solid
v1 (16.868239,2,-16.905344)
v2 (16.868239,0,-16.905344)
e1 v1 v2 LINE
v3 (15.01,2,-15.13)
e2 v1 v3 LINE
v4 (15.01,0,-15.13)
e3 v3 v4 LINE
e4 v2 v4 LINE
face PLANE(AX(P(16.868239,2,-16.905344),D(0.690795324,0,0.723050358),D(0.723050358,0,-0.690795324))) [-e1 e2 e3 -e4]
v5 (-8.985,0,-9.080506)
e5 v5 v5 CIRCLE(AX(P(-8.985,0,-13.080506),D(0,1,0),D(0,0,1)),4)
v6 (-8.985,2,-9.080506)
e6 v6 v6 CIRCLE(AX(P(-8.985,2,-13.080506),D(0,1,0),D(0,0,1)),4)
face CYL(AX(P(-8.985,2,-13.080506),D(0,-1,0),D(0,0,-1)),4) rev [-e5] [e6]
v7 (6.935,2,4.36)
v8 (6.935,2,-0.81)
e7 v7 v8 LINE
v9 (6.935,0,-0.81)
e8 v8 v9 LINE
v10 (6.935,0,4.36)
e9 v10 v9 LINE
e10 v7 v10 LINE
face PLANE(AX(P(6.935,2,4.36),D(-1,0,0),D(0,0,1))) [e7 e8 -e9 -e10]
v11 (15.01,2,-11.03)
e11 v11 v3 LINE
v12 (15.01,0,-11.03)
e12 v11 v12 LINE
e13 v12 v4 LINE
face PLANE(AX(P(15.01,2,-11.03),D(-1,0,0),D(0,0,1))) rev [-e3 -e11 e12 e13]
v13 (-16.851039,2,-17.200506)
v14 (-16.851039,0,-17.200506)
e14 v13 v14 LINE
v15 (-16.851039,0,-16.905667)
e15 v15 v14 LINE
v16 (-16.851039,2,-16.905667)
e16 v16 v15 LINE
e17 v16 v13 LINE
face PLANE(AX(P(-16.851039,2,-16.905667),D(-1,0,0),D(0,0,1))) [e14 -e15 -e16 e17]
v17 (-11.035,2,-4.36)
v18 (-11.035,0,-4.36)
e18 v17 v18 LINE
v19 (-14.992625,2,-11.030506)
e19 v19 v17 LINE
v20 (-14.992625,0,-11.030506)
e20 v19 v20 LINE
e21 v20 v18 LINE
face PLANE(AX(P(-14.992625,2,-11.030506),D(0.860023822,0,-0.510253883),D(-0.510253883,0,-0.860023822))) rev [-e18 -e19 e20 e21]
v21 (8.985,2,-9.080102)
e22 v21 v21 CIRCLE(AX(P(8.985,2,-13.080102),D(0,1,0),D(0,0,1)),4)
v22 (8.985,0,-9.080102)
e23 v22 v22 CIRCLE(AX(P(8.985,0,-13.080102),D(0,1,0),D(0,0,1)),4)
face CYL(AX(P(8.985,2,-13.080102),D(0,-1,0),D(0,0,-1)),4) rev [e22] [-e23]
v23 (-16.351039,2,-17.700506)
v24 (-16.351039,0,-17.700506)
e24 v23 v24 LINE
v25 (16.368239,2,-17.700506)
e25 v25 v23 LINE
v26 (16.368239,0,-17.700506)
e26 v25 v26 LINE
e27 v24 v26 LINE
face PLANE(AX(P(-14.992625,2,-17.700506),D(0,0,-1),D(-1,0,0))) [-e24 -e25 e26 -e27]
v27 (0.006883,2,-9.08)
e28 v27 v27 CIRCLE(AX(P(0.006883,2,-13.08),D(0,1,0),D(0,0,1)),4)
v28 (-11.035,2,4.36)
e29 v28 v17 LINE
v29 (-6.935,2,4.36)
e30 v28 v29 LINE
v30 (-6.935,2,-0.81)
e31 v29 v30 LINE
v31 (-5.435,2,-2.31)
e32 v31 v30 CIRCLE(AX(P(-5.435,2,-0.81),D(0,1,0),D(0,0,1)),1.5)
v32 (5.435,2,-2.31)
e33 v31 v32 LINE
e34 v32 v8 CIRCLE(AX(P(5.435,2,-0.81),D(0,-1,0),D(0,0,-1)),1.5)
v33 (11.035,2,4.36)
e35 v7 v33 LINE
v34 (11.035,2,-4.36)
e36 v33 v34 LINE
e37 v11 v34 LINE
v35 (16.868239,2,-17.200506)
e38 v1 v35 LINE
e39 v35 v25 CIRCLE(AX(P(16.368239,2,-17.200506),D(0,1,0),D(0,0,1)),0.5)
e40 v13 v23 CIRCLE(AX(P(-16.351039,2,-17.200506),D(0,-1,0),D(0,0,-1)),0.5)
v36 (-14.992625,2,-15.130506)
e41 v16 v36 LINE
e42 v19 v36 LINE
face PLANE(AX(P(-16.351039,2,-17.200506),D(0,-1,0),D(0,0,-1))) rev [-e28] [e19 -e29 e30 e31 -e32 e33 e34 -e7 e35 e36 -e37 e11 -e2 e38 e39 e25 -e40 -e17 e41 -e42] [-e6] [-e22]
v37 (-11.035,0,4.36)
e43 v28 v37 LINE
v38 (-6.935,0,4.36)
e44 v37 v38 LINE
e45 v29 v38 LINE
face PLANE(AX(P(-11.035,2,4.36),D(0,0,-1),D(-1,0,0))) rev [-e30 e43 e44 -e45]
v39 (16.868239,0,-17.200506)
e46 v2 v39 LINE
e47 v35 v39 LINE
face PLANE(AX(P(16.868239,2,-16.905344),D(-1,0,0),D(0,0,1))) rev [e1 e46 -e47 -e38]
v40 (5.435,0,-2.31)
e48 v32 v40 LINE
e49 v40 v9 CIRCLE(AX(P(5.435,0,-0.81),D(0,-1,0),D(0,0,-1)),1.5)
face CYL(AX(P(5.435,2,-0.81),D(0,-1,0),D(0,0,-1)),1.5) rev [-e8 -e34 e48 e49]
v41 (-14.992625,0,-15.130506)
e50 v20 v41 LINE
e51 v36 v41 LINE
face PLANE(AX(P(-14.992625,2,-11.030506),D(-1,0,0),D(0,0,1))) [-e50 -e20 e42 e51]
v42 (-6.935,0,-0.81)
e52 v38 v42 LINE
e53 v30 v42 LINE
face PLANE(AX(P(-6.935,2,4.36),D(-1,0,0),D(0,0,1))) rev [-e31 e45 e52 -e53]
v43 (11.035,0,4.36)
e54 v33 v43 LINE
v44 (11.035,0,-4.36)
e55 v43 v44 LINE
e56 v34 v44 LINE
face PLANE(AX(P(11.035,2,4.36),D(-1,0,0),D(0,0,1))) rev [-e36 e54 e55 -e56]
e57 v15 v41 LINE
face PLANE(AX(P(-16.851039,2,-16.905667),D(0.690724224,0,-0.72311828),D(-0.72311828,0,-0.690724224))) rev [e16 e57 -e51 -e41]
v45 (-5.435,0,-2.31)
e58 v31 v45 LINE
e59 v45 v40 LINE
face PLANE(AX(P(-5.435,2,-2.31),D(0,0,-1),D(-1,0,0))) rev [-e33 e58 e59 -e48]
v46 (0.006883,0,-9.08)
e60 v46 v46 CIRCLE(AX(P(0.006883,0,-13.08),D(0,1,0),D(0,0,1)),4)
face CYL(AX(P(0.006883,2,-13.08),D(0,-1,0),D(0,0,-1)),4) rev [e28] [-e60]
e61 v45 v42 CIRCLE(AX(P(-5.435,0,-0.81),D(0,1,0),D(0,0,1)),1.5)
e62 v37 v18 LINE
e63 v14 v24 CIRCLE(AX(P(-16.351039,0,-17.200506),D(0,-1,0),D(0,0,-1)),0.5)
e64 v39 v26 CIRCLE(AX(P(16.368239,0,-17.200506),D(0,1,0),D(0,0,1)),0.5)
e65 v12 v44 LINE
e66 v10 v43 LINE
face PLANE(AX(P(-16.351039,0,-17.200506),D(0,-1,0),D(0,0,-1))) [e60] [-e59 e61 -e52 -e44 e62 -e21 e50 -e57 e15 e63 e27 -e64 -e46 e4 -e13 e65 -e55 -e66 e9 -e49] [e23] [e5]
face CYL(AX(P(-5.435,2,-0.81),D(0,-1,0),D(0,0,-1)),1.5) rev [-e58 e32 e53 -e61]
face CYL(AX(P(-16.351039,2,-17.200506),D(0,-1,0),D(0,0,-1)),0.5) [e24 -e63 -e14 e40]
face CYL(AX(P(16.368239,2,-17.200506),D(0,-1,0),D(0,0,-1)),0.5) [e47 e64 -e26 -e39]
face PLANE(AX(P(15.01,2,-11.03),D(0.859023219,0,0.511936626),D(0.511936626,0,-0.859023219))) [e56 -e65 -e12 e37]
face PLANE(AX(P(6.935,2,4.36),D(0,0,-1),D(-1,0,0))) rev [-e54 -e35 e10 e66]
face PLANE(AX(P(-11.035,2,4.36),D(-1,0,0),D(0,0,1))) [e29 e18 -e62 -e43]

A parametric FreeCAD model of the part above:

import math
import FreeCAD as App
import Part
import Sketcher
from FreeCAD import Vector
Q = App.Units.Quantity

doc = App.newDocument("Part")
params = doc.addObject("Spreadsheet::Sheet", "Params")
for row, (alias, value) in enumerate([
    ("sketch1_radius", "1.5 mm"),
    ("sketch1_radius2", "0.5 mm"),
    ("sketch1_width", "4.1 mm"),
    ("sketch1_width2", "10.87 mm"),
    ("sketch1_height", "5.17 mm"),
    ("pad1_length", "2 mm"),
    ("sketch2_diameter", "8 mm"),
    ("pocket1_length", "2 mm"),
    ("sketch3_diameter", "8 mm"),
    ("pocket2_length", "2 mm"),
    ("sketch4_diameter", "8 mm"),
    ("pocket3_length", "2 mm"),
], start=1):
    params.set(f"A{row}", alias)
    params.set(f"B{row}", "=" + value)
    params.setAlias(f"B{row}", alias)

body = doc.addObject("PartDesign::Body", "Body")

# Sketch on XZ plane
sketch1 = body.newObject("Sketcher::SketchObject", "Sketch")
sketch1.AttachmentSupport = (doc.getObject("XZ_Plane"), [""])
sketch1.MapMode = "FlatFace"
sketch1.addGeometry(Part.LineSegment(Vector(-6.93, 4.36, 0), Vector(-6.93, -0.81, 0)), False)
sketch1.addGeometry(Part.ArcOfCircle(Part.Circle(Vector(-5.44, -0.81, 0), Vector(0, 0, 1), 1.5), math.radians(180), math.radians(270)), False)
sketch1.addGeometry(Part.LineSegment(Vector(-5.43, -2.31, 0), Vector(5.43, -2.31, 0)), False)
sketch1.addGeometry(Part.ArcOfCircle(Part.Circle(Vector(5.44, -0.81, 0), Vector(0, 0, 1), 1.5), math.radians(-90), math.radians(0)), False)
sketch1.addGeometry(Part.LineSegment(Vector(6.93, -0.81, 0), Vector(6.93, 4.36, 0)), False)
sketch1.addGeometry(Part.LineSegment(Vector(6.93, 4.36, 0), Vector(11.04, 4.36, 0)), False)
sketch1.addGeometry(Part.LineSegment(Vector(11.04, 4.36, 0), Vector(11.04, -4.36, 0)), False)
sketch1.addGeometry(Part.LineSegment(Vector(11.04, -4.36, 0), Vector(15.01, -11.03, 0)), False)
sketch1.addGeometry(Part.LineSegment(Vector(15.01, -11.03, 0), Vector(15.01, -15.13, 0)), False)
sketch1.addGeometry(Part.LineSegment(Vector(15.01, -15.13, 0), Vector(16.87, -16.91, 0)), False)
sketch1.addGeometry(Part.LineSegment(Vector(16.87, -16.91, 0), Vector(16.87, -17.2, 0)), False)
sketch1.addGeometry(Part.ArcOfCircle(Part.Circle(Vector(16.37, -17.2, 0), Vector(0, 0, 1), 0.5), math.radians(-90), math.radians(0)), False)
sketch1.addGeometry(Part.LineSegment(Vector(16.37, -17.7, 0), Vector(-16.35, -17.7, 0)), False)
sketch1.addGeometry(Part.ArcOfCircle(Part.Circle(Vector(-16.35, -17.2, 0), Vector(0, 0, 1), 0.5), math.radians(180), math.radians(270)), False)
sketch1.addGeometry(Part.LineSegment(Vector(-16.85, -17.2, 0), Vector(-16.85, -16.91, 0)), False)
sketch1.addGeometry(Part.LineSegment(Vector(-16.85, -16.91, 0), Vector(-14.99, -15.13, 0)), False)
sketch1.addGeometry(Part.LineSegment(Vector(-14.99, -15.13, 0), Vector(-14.99, -11.03, 0)), False)
sketch1.addGeometry(Part.LineSegment(Vector(-14.99, -11.03, 0), Vector(-11.04, -4.36, 0)), False)
sketch1.addGeometry(Part.LineSegment(Vector(-11.04, -4.36, 0), Vector(-11.04, 4.36, 0)), False)
sketch1.addGeometry(Part.LineSegment(Vector(-11.04, 4.36, 0), Vector(-6.93, 4.36, 0)), False)
sketch1.addConstraint(Sketcher.Constraint("Tangent", 0, 2, 1, 1))
sketch1.addConstraint(Sketcher.Constraint("Tangent", 1, 2, 2, 1))
sketch1.addConstraint(Sketcher.Constraint("Tangent", 2, 2, 3, 1))
sketch1.addConstraint(Sketcher.Constraint("Tangent", 3, 2, 4, 1))
sketch1.addConstraint(Sketcher.Constraint("Coincident", 4, 2, 5, 1))
sketch1.addConstraint(Sketcher.Constraint("Coincident", 5, 2, 6, 1))
sketch1.addConstraint(Sketcher.Constraint("Coincident", 6, 2, 7, 1))
sketch1.addConstraint(Sketcher.Constraint("Coincident", 7, 2, 8, 1))
sketch1.addConstraint(Sketcher.Constraint("Coincident", 8, 2, 9, 1))
sketch1.addConstraint(Sketcher.Constraint("Coincident", 9, 2, 10, 1))
sketch1.addConstraint(Sketcher.Constraint("Tangent", 10, 2, 11, 2))
sketch1.addConstraint(Sketcher.Constraint("Tangent", 11, 1, 12, 1))
sketch1.addConstraint(Sketcher.Constraint("Tangent", 12, 2, 13, 2))
sketch1.addConstraint(Sketcher.Constraint("Tangent", 13, 1, 14, 1))
sketch1.addConstraint(Sketcher.Constraint("Coincident", 14, 2, 15, 1))
sketch1.addConstraint(Sketcher.Constraint("Coincident", 15, 2, 16, 1))
sketch1.addConstraint(Sketcher.Constraint("Coincident", 16, 2, 17, 1))
sketch1.addConstraint(Sketcher.Constraint("Coincident", 17, 2, 18, 1))
sketch1.addConstraint(Sketcher.Constraint("Coincident", 18, 2, 19, 1))
sketch1.addConstraint(Sketcher.Constraint("Coincident", 19, 2, 0, 1))
sketch1.addConstraint(Sketcher.Constraint("Vertical", 0))
sketch1.addConstraint(Sketcher.Constraint("Horizontal", 2))
sketch1.addConstraint(Sketcher.Constraint("Vertical", 4))
sketch1.addConstraint(Sketcher.Constraint("Horizontal", 5))
sketch1.addConstraint(Sketcher.Constraint("Vertical", 6))
sketch1.addConstraint(Sketcher.Constraint("Vertical", 8))
sketch1.addConstraint(Sketcher.Constraint("Vertical", 10))
sketch1.addConstraint(Sketcher.Constraint("Horizontal", 12))
sketch1.addConstraint(Sketcher.Constraint("Vertical", 14))
sketch1.addConstraint(Sketcher.Constraint("Vertical", 16))
sketch1.addConstraint(Sketcher.Constraint("Vertical", 18))
sketch1.addConstraint(Sketcher.Constraint("Horizontal", 19))
sketch1.addConstraint(Sketcher.Constraint("Equal", 1, 3))
sketch1.addConstraint(Sketcher.Constraint("Equal", 11, 13))
sketch1.addConstraint(Sketcher.Constraint("Symmetric", 5, 2, 17, 2, -1, 1))
sketch1.addConstraint(Sketcher.Constraint("Symmetric", 4, 2, 19, 2, -2))
sketch1.addConstraint(Sketcher.Constraint("Horizontal", 6, 2, 17, 2))
sketch1.addConstraint(Sketcher.Constraint("Equal", 19, 8))
sketch1.addConstraint(Sketcher.Constraint("Equal", 8, 16))
sketch1.addConstraint(Sketcher.Constraint("Equal", 9, 15))
sketch1.addConstraint(Sketcher.Constraint("Radius", 1, Q("1.5 mm")))
sketch1.addConstraint(Sketcher.Constraint("Radius", 11, Q("0.5 mm")))
sketch1.addConstraint(Sketcher.Constraint("DistanceX", 5, 1, 5, 2, Q("4.1 mm")))
sketch1.addConstraint(Sketcher.Constraint("DistanceX", 2, 1, 2, 2, Q("10.87 mm")))
sketch1.addConstraint(Sketcher.Constraint("DistanceY", 0, 2, 0, 1, Q("5.17 mm")))
sketch1.addConstraint(Sketcher.Constraint("DistanceY", 6, 2, 6, 1, Q("8.72 mm")))
sketch1.addConstraint(Sketcher.Constraint("Distance", 9, Q("2.57 mm")))
sketch1.addConstraint(Sketcher.Constraint("DistanceX", -1, 1, 7, 2, Q("15.01 mm")))
sketch1.addConstraint(Sketcher.Constraint("DistanceY", 7, 2, -1, 1, Q("11.03 mm")))
sketch1.addConstraint(Sketcher.Constraint("DistanceY", 13, 3, 15, 2, Q("2.07 mm")))
sketch1.addConstraint(Sketcher.Constraint("DistanceX", 12, 2, 12, 1, Q("32.719278 mm")))
sketch1.addConstraint(Sketcher.Constraint("DistanceY", 10, 2, 10, 1, Q("0.295162 mm")))
sketch1.addConstraint(Sketcher.Constraint("DistanceY", 14, 1, 14, 2, Q("0.294839 mm")))
sketch1.addConstraint(Sketcher.Constraint("DistanceX", -1, 1, 11, 3, Q("16.368239 mm")))
sketch1.setExpression("Constraints[40]", "Params.sketch1_radius")
sketch1.setExpression("Constraints[41]", "Params.sketch1_radius2")
sketch1.setExpression("Constraints[42]", "Params.sketch1_width")
sketch1.setExpression("Constraints[43]", "Params.sketch1_width2")
sketch1.setExpression("Constraints[44]", "Params.sketch1_height")
pad1 = body.newObject("PartDesign::Pad", "Pad")
pad1.Profile = sketch1
pad1.setExpression("Length", "Params.pad1_length")
pad1.Reversed = True

# Sketch on XZ plane
sketch2 = body.newObject("Sketcher::SketchObject", "Sketch001")
sketch2.AttachmentSupport = (doc.getObject("XZ_Plane"), [""])
sketch2.MapMode = "FlatFace"
sketch2.addGeometry(Part.Circle(Vector(9, -13.1, 0), Vector(0, 0, 1), 4), False)
sketch2.addConstraint(Sketcher.Constraint("Diameter", 0, Q("8 mm")))
sketch2.addConstraint(Sketcher.Constraint("DistanceX", -1, 1, 0, 3, Q("8.985 mm")))
sketch2.addConstraint(Sketcher.Constraint("DistanceY", 0, 3, -1, 1, Q("13.080102 mm")))
sketch2.setExpression("Constraints[0]", "Params.sketch2_diameter")
pocket1 = body.newObject("PartDesign::Pocket", "Pocket")
pocket1.Profile = sketch2
pocket1.setExpression("Length", "Params.pocket1_length")

# Sketch on XZ plane
sketch3 = body.newObject("Sketcher::SketchObject", "Sketch002")
sketch3.AttachmentSupport = (doc.getObject("XZ_Plane"), [""])
sketch3.MapMode = "FlatFace"
sketch3.addGeometry(Part.Circle(Vector(0, -13.1, 0), Vector(0, 0, 1), 4), False)
sketch3.addConstraint(Sketcher.Constraint("Diameter", 0, Q("8 mm")))
sketch3.addConstraint(Sketcher.Constraint("DistanceY", 0, 3, -1, 1, Q("13.08 mm")))
sketch3.addConstraint(Sketcher.Constraint("DistanceX", -1, 1, 0, 3, Q("0.006883 mm")))
sketch3.setExpression("Constraints[0]", "Params.sketch3_diameter")
pocket2 = body.newObject("PartDesign::Pocket", "Pocket001")
pocket2.Profile = sketch3
pocket2.setExpression("Length", "Params.pocket2_length")

# Sketch on XZ plane
sketch4 = body.newObject("Sketcher::SketchObject", "Sketch003")
sketch4.AttachmentSupport = (doc.getObject("XZ_Plane"), [""])
sketch4.MapMode = "FlatFace"
sketch4.addGeometry(Part.Circle(Vector(-9, -13.1, 0), Vector(0, 0, 1), 4), False)
sketch4.addConstraint(Sketcher.Constraint("Diameter", 0, Q("8 mm")))
sketch4.addConstraint(Sketcher.Constraint("DistanceX", 0, 3, -1, 1, Q("8.985 mm")))
sketch4.addConstraint(Sketcher.Constraint("DistanceY", 0, 3, -1, 1, Q("13.080506 mm")))
sketch4.setExpression("Constraints[0]", "Params.sketch4_diameter")
pocket3 = body.newObject("PartDesign::Pocket", "Pocket002")
pocket3.Profile = sketch4
pocket3.setExpression("Length", "Params.pocket3_length")

doc.recompute()
